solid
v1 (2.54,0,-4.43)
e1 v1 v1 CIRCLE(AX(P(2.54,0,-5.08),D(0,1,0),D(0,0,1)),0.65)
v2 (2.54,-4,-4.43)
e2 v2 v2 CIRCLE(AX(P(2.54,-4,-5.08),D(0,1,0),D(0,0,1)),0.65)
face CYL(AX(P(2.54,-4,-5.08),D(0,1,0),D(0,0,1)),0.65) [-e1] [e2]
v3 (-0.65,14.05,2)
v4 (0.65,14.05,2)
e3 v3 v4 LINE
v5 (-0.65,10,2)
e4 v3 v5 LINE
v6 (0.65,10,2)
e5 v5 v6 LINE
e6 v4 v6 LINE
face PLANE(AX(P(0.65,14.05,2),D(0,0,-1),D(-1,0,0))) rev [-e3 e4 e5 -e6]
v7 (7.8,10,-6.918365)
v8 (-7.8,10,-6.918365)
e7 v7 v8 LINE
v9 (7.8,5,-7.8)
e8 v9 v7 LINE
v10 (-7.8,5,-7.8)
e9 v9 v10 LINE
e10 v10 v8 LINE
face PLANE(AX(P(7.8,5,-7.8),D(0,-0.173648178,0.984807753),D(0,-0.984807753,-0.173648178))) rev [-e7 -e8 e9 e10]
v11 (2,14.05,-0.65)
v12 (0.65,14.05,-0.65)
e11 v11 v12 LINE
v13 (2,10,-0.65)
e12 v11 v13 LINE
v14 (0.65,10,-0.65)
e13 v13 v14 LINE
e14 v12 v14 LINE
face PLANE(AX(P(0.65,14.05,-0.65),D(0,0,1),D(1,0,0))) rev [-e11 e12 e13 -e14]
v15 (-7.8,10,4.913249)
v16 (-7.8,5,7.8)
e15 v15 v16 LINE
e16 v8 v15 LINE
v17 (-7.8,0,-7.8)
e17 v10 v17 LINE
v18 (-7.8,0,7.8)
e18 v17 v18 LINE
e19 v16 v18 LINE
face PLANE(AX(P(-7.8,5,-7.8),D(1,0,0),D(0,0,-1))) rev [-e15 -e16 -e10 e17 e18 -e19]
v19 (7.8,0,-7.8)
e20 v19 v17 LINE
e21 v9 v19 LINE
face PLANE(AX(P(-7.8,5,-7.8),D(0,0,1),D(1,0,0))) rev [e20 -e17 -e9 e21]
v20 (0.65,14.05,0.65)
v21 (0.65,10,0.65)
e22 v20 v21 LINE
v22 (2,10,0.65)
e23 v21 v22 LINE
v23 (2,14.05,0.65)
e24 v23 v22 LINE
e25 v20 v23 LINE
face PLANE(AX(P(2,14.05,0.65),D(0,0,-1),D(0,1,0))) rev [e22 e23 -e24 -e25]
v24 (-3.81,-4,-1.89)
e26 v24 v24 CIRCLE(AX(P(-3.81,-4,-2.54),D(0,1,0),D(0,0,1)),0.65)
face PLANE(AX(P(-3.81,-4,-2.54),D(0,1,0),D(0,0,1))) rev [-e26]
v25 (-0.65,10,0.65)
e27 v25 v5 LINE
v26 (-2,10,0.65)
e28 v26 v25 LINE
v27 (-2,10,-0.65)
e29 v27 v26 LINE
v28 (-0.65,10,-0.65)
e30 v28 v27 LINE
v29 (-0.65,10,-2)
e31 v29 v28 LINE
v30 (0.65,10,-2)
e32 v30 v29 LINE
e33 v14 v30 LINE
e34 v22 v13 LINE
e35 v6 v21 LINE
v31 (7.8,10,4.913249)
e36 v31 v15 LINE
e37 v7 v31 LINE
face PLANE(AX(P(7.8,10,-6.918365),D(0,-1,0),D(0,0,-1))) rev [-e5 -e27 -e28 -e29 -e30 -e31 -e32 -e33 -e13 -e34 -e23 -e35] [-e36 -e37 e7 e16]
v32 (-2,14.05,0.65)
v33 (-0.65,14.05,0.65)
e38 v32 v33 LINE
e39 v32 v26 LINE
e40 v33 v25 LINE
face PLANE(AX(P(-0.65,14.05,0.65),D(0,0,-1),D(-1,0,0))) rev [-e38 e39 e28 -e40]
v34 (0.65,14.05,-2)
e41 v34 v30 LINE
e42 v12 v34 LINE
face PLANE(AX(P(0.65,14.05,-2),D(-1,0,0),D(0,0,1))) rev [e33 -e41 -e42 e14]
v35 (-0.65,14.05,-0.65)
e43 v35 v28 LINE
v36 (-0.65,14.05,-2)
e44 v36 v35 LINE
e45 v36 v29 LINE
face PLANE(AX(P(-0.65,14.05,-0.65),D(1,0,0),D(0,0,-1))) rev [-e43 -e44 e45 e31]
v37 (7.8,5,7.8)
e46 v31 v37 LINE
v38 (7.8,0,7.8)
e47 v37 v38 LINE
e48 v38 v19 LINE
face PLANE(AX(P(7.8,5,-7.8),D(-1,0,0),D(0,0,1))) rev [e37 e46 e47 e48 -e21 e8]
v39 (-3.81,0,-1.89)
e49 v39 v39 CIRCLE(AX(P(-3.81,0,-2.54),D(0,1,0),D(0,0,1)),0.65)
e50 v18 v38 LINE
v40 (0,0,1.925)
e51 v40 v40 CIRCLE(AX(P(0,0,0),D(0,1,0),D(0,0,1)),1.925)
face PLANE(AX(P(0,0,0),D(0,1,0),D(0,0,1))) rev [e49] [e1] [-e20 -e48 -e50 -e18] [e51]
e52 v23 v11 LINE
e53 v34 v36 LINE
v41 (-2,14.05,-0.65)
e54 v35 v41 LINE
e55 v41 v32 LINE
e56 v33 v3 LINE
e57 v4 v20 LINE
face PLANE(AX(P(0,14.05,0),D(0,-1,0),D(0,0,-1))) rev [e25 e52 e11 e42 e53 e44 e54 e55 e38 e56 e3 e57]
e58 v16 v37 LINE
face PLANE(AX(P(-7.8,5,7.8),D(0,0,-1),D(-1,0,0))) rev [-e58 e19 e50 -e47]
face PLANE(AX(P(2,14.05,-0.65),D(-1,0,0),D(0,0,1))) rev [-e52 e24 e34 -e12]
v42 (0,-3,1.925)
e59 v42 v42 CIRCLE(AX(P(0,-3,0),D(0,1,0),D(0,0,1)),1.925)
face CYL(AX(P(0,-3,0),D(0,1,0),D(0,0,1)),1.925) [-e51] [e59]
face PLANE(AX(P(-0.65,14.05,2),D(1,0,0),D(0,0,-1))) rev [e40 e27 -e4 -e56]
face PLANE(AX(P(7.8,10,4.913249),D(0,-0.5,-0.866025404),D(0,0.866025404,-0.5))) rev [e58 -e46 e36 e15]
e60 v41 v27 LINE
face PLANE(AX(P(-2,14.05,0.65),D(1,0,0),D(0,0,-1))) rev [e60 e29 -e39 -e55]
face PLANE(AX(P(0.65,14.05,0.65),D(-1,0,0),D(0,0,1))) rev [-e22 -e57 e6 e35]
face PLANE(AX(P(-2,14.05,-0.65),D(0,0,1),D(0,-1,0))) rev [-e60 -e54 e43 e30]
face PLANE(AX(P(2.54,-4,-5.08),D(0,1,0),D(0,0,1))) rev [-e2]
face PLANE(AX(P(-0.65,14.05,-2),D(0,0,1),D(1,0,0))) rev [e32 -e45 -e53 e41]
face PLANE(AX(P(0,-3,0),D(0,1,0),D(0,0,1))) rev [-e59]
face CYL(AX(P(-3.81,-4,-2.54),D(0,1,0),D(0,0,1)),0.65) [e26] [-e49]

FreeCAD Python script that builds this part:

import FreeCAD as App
import Part
import Sketcher

V = App.Vector
Q = App.Units.Quantity


def add_polygon(sketch, points):
    """Adds a closed chain of lines whose ends are joined by coincident constraints."""
    first, n = sketch.GeometryCount, len(points)
    for a, b in zip(points, points[1:] + points[:1]):
        sketch.addGeometry(Part.LineSegment(App.Vector(*a, 0), App.Vector(*b, 0)), False)
    for i in range(n):
        sketch.addConstraint(Sketcher.Constraint("Coincident", first + i, 2, first + (i + 1) % n, 1))

doc = App.newDocument("Part")
params = doc.addObject("Spreadsheet::Sheet", "Params")
for row, (alias, value) in enumerate([
    ("sketch1_width", "15.6 mm"),
    ("pad1_length", "5 mm"),
    ("sketch2_height", "15.6 mm"),
    ("pad2_length", "15.6 mm"),
    ("sketch3_width", "1.3 mm"),
    ("pad3_length", "4.05 mm"),
    ("sketch4_diameter", "3.85 mm"),
    ("pad4_length", "3 mm"),
    ("sketch5_diameter", "1.3 mm"),
    ("pad5_length", "4 mm"),
], start=1):
    params.set(f"A{row}", alias)
    params.set(f"B{row}", "=" + value)
    params.setAlias(f"B{row}", alias)

body = doc.addObject("PartDesign::Body", "Body")

sketch1 = body.newObject("Sketcher::SketchObject", "Sketch")
sketch1.AttachmentSupport = (doc.getObject("XZ_Plane"), [""])
sketch1.MapMode = "FlatFace"
add_polygon(sketch1, [(-8, -8), (-8, 8), (8, 8), (8, -8)])
sketch1.addConstraint([
    Sketcher.Constraint("Vertical", 0),
    Sketcher.Constraint("Horizontal", 1),
    Sketcher.Constraint("Vertical", 2),
    Sketcher.Constraint("Horizontal", 3),
    Sketcher.Constraint("Symmetric", 0, 2, 2, 2, -1, 1),
    Sketcher.Constraint("Equal", 3, 0),
    Sketcher.Constraint("DistanceX", 1, 1, 1, 2, 15.6),
])
sketch1.setExpression("Constraints[10]", "Params.sketch1_width")
pad1 = body.newObject("PartDesign::Pad", "Pad")
pad1.Profile = sketch1
pad1.setExpression("Length", "Params.pad1_length")
pad1.Reversed = True

sketch2 = body.newObject("Sketcher::SketchObject", "Sketch001")
sketch2.AttachmentSupport = (doc.getObject("YZ_Plane"), [""])
sketch2.MapMode = "FlatFace"
add_polygon(sketch2, [(5, 8), (5, -8), (10, -7), (10, 5)])
sketch2.addConstraint([
    Sketcher.Constraint("Vertical", 0),
    Sketcher.Constraint("Vertical", 2),
    Sketcher.Constraint("Angle", 1, Q("10 deg")),
    Sketcher.Constraint("Angle", 3, Q("150 deg")),
    Sketcher.Constraint("DistanceY", 0, 2, 0, 1, 15.6),
    Sketcher.Constraint("DistanceX", -1, 1, 0, 2, 5.0),
    Sketcher.Constraint("DistanceX", -1, 1, 1, 2, 10.0),
    Sketcher.Constraint("DistanceY", 0, 2, -1, 1, 7.8),
])
sketch2.setExpression("Constraints[8]", "Params.sketch2_height")
pad2 = body.newObject("PartDesign::Pad", "Pad001")
pad2.Profile = sketch2
pad2.setExpression("Length", "Params.pad2_length")
pad2.Midplane = True

sketch3 = body.newObject("Sketcher::SketchObject", "Sketch002")
sketch3.AttachmentSupport = (doc.getObject("XZ_Plane"), [""])
sketch3.MapMode = "FlatFace"
sketch3.AttachmentOffset = App.Placement(V(0, 0, -10), App.Rotation())
add_polygon(sketch3, [(0.7, -2), (-0.7, -2), (-0.7, -0.7), (-2, -0.7), (-2, 0.7), (-0.7, 0.7), (-0.7, 2), (0.7, 2), (0.7, 0.7), (2, 0.7), (2, -0.7), (0.7, -0.7)])
sketch3.addConstraint([
    Sketcher.Constraint("Horizontal", 0),
    Sketcher.Constraint("Vertical", 1),
    Sketcher.Constraint("Horizontal", 2),
    Sketcher.Constraint("Vertical", 3),
    Sketcher.Constraint("Horizontal", 4),
    Sketcher.Constraint("Vertical", 5),
    Sketcher.Constraint("Horizontal", 6),
    Sketcher.Constraint("Vertical", 7),
    Sketcher.Constraint("Horizontal", 8),
    Sketcher.Constraint("Vertical", 9),
    Sketcher.Constraint("Horizontal", 10),
    Sketcher.Constraint("Vertical", 11),
    Sketcher.Constraint("Symmetric", 0, 2, 6, 2, -1, 1),
    Sketcher.Constraint("Symmetric", 2, 2, 8, 2, -1, 1),
    Sketcher.Constraint("Symmetric", 4, 2, 10, 2, -1, 1),
    Sketcher.Constraint("Symmetric", 4, 2, 7, 2, -2),
    Sketcher.Constraint("Equal", 10, 1),
    Sketcher.Constraint("Equal", 6, 3),
    Sketcher.Constraint("DistanceX", 0, 2, 0, 1, 1.3),
    Sketcher.Constraint("DistanceY", 0, 2, -1, 1, 2.0),
])
sketch3.setExpression("Constraints[30]", "Params.sketch3_width")
pad3 = body.newObject("PartDesign::Pad", "Pad002")
pad3.Profile = sketch3
pad3.setExpression("Length", "Params.pad3_length")
pad3.Reversed = True

sketch4 = body.newObject("Sketcher::SketchObject", "Sketch003")
sketch4.AttachmentSupport = (doc.getObject("XZ_Plane"), [""])
sketch4.MapMode = "FlatFace"
sketch4.addGeometry(Part.Circle(V(0, 0, 0), V(0, 0, 1), 1.9), False)
sketch4.addConstraint([
    Sketcher.Constraint("Coincident", 0, 3, -1, 1),
    Sketcher.Constraint("Diameter", 0, 3.85),
])
sketch4.setExpression("Constraints[1]", "Params.sketch4_diameter")
pad4 = body.newObject("PartDesign::Pad", "Pad003")
pad4.Profile = sketch4
pad4.setExpression("Length", "Params.pad4_length")

sketch5 = body.newObject("Sketcher::SketchObject", "Sketch004")
sketch5.AttachmentSupport = (doc.getObject("XZ_Plane"), [""])
sketch5.MapMode = "FlatFace"
sketch5.addGeometry([
    Part.Circle(V(2.5, -5.1, 0), V(0, 0, 1), 0.7),
    Part.Circle(V(-3.8, -2.5, 0), V(0, 0, 1), 0.7),
], False)
sketch5.addConstraint([
    Sketcher.Constraint("Equal", 0, 1),
    Sketcher.Constraint("Diameter", 0, 1.3),
    Sketcher.Constraint("DistanceX", -1, 1, 0, 3, 2.54),
    Sketcher.Constraint("DistanceY", 0, 3, -1, 1, 5.08),
    Sketcher.Constraint("DistanceX", 1, 3, -1, 1, 3.81),
    Sketcher.Constraint("DistanceY", 1, 3, -1, 1, 2.54),
])
sketch5.setExpression("Constraints[1]", "Params.sketch5_diameter")
pad5 = body.newObject("PartDesign::Pad", "Pad004")
pad5.Profile = sketch5
pad5.setExpression("Length", "Params.pad5_length")

doc.recompute()
